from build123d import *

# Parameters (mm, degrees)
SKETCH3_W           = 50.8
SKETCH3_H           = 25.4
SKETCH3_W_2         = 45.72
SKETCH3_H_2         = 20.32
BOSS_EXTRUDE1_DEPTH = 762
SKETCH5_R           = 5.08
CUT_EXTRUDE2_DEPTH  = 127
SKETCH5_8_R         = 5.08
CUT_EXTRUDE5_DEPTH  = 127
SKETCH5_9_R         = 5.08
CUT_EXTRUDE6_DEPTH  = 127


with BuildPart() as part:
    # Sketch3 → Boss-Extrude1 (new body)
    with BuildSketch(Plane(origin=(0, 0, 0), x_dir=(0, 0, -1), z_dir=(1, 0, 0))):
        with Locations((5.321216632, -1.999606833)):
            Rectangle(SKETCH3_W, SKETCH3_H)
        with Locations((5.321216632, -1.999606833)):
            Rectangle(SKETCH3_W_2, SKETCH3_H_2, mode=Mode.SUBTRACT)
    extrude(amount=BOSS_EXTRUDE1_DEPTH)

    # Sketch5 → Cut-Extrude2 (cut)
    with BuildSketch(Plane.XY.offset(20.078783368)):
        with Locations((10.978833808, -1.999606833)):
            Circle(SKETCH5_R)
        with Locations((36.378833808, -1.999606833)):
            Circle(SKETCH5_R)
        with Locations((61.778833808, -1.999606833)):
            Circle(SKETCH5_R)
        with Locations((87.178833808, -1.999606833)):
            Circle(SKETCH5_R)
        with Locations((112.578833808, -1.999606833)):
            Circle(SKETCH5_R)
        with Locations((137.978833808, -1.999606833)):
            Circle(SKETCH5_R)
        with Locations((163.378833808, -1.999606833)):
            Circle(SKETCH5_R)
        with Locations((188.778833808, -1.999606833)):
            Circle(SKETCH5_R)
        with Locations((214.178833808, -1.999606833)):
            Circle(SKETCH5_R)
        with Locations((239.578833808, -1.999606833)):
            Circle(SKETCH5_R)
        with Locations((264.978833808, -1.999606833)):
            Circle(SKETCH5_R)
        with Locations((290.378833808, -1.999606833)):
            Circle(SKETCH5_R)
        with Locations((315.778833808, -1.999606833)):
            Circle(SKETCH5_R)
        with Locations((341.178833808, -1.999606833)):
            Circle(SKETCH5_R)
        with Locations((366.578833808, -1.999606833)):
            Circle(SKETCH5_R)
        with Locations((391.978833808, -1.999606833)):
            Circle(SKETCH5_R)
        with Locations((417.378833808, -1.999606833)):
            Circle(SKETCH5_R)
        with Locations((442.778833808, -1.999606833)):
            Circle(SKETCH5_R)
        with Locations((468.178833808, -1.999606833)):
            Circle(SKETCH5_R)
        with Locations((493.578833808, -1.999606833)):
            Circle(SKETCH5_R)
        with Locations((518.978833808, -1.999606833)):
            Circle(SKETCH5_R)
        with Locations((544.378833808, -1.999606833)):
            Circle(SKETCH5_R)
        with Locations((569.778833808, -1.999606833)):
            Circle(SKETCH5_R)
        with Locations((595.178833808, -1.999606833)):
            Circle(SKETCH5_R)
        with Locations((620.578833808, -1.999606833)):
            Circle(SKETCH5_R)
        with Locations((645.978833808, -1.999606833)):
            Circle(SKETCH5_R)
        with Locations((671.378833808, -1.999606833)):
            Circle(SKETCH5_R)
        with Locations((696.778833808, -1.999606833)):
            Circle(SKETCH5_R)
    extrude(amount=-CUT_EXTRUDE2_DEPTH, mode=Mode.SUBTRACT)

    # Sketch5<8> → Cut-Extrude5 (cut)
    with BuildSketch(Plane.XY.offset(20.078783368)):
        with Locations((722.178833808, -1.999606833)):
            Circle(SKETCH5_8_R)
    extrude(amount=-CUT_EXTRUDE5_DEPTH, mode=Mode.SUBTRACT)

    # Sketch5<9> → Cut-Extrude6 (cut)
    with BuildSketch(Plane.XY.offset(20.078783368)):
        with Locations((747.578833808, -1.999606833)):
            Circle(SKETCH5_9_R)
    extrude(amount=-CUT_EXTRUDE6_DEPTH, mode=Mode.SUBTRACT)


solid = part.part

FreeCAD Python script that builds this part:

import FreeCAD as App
import Part
import Sketcher
Q = App.Units.Quantity


def add_polygon(sketch, points):
    """Adds a closed chain of lines whose ends are joined by coincident constraints."""
    first, n = sketch.GeometryCount, len(points)
    for a, b in zip(points, points[1:] + points[:1]):
        sketch.addGeometry(Part.LineSegment(App.Vector(*a, 0), App.Vector(*b, 0)), False)
    for i in range(n):
        sketch.addConstraint(Sketcher.Constraint("Coincident", first + i, 2, first + (i + 1) % n, 1))

doc = App.newDocument("Part")
body = doc.addObject("PartDesign::Body", "Body")

sketch1 = body.newObject("Sketcher::SketchObject", "Sketch")
sketch1.AttachmentSupport = (doc.getObject("YZ_Plane"), [""])
sketch1.MapMode = "FlatFace"
add_polygon(sketch1, [(11, 20), (-15, 20), (-15, -31), (11, -31)])
add_polygon(sketch1, [(-12, -28), (-12, 18), (8, 18), (8, -28)])
sketch1.addConstraint([
    Sketcher.Constraint("Horizontal", 0),
    Sketcher.Constraint("Vertical", 1),
    Sketcher.Constraint("Horizontal", 2),
    Sketcher.Constraint("Vertical", 3),
    Sketcher.Constraint("Vertical", 4),
    Sketcher.Constraint("Horizontal", 5),
    Sketcher.Constraint("Vertical", 6),
    Sketcher.Constraint("Horizontal", 7),
    Sketcher.Constraint("DistanceX", 0, 2, 0, 1, Q("1 in")),
    Sketcher.Constraint("DistanceY", 1, 2, 1, 1, Q("2 in")),
    Sketcher.Constraint("DistanceX", 5, 1, 5, 2, Q("0.8 in")),
    Sketcher.Constraint("DistanceY", 4, 1, 4, 2, Q("1.8 in")),
    Sketcher.Constraint("DistanceX", 0, 2, 4, 2, Q("0.1 in")),
    Sketcher.Constraint("DistanceY", 4, 2, 0, 2, Q("0.1 in")),
    Sketcher.Constraint("DistanceX", 0, 2, -1, 1, Q("14.699607 mm")),
    Sketcher.Constraint("DistanceY", -1, 1, 0, 2, Q("20.078783 mm")),
])
pad1 = body.newObject("PartDesign::Pad", "Pad")
pad1.Profile = sketch1
pad1.Length = Q("30 in")

sketch2 = body.newObject("Sketcher::SketchObject", "Sketch001")
sketch2.AttachmentSupport = (doc.getObject("XY_Plane"), [""])
sketch2.MapMode = "FlatFace"
sketch2.AttachmentOffset = App.Placement(App.Vector(0, 0, 20.078783), App.Rotation())
sketch2.addGeometry([
    Part.Circle(App.Vector(11, -2, 0), App.Vector(0, 0, 1), 5),
    Part.Circle(App.Vector(36, -2, 0), App.Vector(0, 0, 1), 5),
    Part.Circle(App.Vector(62, -2, 0), App.Vector(0, 0, 1), 5),
    Part.Circle(App.Vector(87, -2, 0), App.Vector(0, 0, 1), 5),
    Part.Circle(App.Vector(113, -2, 0), App.Vector(0, 0, 1), 5),
    Part.Circle(App.Vector(138, -2, 0), App.Vector(0, 0, 1), 5),
    Part.Circle(App.Vector(163, -2, 0), App.Vector(0, 0, 1), 5),
    Part.Circle(App.Vector(189, -2, 0), App.Vector(0, 0, 1), 5),
    Part.Circle(App.Vector(214, -2, 0), App.Vector(0, 0, 1), 5),
    Part.Circle(App.Vector(240, -2, 0), App.Vector(0, 0, 1), 5),
    Part.Circle(App.Vector(265, -2, 0), App.Vector(0, 0, 1), 5),
    Part.Circle(App.Vector(290, -2, 0), App.Vector(0, 0, 1), 5),
    Part.Circle(App.Vector(316, -2, 0), App.Vector(0, 0, 1), 5),
    Part.Circle(App.Vector(341, -2, 0), App.Vector(0, 0, 1), 5),
    Part.Circle(App.Vector(367, -2, 0), App.Vector(0, 0, 1), 5),
    Part.Circle(App.Vector(392, -2, 0), App.Vector(0, 0, 1), 5),
    Part.Circle(App.Vector(417, -2, 0), App.Vector(0, 0, 1), 5),
    Part.Circle(App.Vector(443, -2, 0), App.Vector(0, 0, 1), 5),
    Part.Circle(App.Vector(468, -2, 0), App.Vector(0, 0, 1), 5),
    Part.Circle(App.Vector(494, -2, 0), App.Vector(0, 0, 1), 5),
    Part.Circle(App.Vector(519, -2, 0), App.Vector(0, 0, 1), 5),
    Part.Circle(App.Vector(544, -2, 0), App.Vector(0, 0, 1), 5),
    Part.Circle(App.Vector(570, -2, 0), App.Vector(0, 0, 1), 5),
    Part.Circle(App.Vector(595, -2, 0), App.Vector(0, 0, 1), 5),
    Part.Circle(App.Vector(621, -2, 0), App.Vector(0, 0, 1), 5),
    Part.Circle(App.Vector(646, -2, 0), App.Vector(0, 0, 1), 5),
    Part.Circle(App.Vector(671, -2, 0), App.Vector(0, 0, 1), 5),
    Part.Circle(App.Vector(697, -2, 0), App.Vector(0, 0, 1), 5),
], False)
sketch2.addConstraint([
    Sketcher.Constraint("Equal", 0, 1),
    Sketcher.Constraint("Equal", 1, 2),
    Sketcher.Constraint("Equal", 2, 3),
    Sketcher.Constraint("Equal", 3, 4),
    Sketcher.Constraint("Equal", 4, 5),
    Sketcher.Constraint("Equal", 5, 6),
    Sketcher.Constraint("Equal", 6, 7),
    Sketcher.Constraint("Equal", 7, 8),
    Sketcher.Constraint("Equal", 8, 9),
    Sketcher.Constraint("Equal", 9, 10),
    Sketcher.Constraint("Equal", 10, 11),
    Sketcher.Constraint("Equal", 11, 12),
    Sketcher.Constraint("Equal", 12, 13),
    Sketcher.Constraint("Equal", 13, 14),
    Sketcher.Constraint("Equal", 14, 15),
    Sketcher.Constraint("Equal", 15, 16),
    Sketcher.Constraint("Equal", 16, 17),
    Sketcher.Constraint("Equal", 17, 18),
    Sketcher.Constraint("Equal", 18, 19),
    Sketcher.Constraint("Equal", 19, 20),
    Sketcher.Constraint("Equal", 20, 21),
    Sketcher.Constraint("Equal", 21, 22),
    Sketcher.Constraint("Equal", 22, 23),
    Sketcher.Constraint("Equal", 23, 24),
    Sketcher.Constraint("Equal", 24, 25),
    Sketcher.Constraint("Equal", 25, 26),
    Sketcher.Constraint("Equal", 26, 27),
    Sketcher.Constraint("Horizontal", 0, 3, 1, 3),
    Sketcher.Constraint("Horizontal", 1, 3, 2, 3),
    Sketcher.Constraint("Horizontal", 2, 3, 3, 3),
    Sketcher.Constraint("Horizontal", 3, 3, 4, 3),
    Sketcher.Constraint("Horizontal", 4, 3, 5, 3),
    Sketcher.Constraint("Horizontal", 5, 3, 6, 3),
    Sketcher.Constraint("Horizontal", 6, 3, 7, 3),
    Sketcher.Constraint("Horizontal", 7, 3, 8, 3),
    Sketcher.Constraint("Horizontal", 8, 3, 9, 3),
    Sketcher.Constraint("Horizontal", 9, 3, 10, 3),
    Sketcher.Constraint("Horizontal", 10, 3, 11, 3),
    Sketcher.Constraint("Horizontal", 11, 3, 12, 3),
    Sketcher.Constraint("Horizontal", 12, 3, 13, 3),
    Sketcher.Constraint("Horizontal", 13, 3, 14, 3),
    Sketcher.Constraint("Horizontal", 14, 3, 15, 3),
    Sketcher.Constraint("Horizontal", 15, 3, 16, 3),
    Sketcher.Constraint("Horizontal", 16, 3, 17, 3),
    Sketcher.Constraint("Horizontal", 17, 3, 18, 3),
    Sketcher.Constraint("Horizontal", 18, 3, 19, 3),
    Sketcher.Constraint("Horizontal", 19, 3, 20, 3),
    Sketcher.Constraint("Horizontal", 20, 3, 21, 3),
    Sketcher.Constraint("Horizontal", 21, 3, 22, 3),
    Sketcher.Constraint("Horizontal", 22, 3, 23, 3),
    Sketcher.Constraint("Horizontal", 23, 3, 24, 3),
    Sketcher.Constraint("Horizontal", 24, 3, 25, 3),
    Sketcher.Constraint("Horizontal", 25, 3, 26, 3),
    Sketcher.Constraint("Horizontal", 26, 3, 27, 3),
    Sketcher.Constraint("Diameter", 0, Q("0.4 in")),
    Sketcher.Constraint("DistanceX", 0, 3, 1, 3, Q("1 in")),
    Sketcher.Constraint("DistanceX", 1, 3, 2, 3, Q("1 in")),
    Sketcher.Constraint("DistanceX", 2, 3, 3, 3, Q("1 in")),
    Sketcher.Constraint("DistanceX", 3, 3, 4, 3, Q("1 in")),
    Sketcher.Constraint("DistanceX", 4, 3, 5, 3, Q("1 in")),
    Sketcher.Constraint("DistanceX", 5, 3, 6, 3, Q("1 in")),
    Sketcher.Constraint("DistanceX", 6, 3, 7, 3, Q("1 in")),
    Sketcher.Constraint("DistanceX", 7, 3, 8, 3, Q("1 in")),
    Sketcher.Constraint("DistanceX", 8, 3, 9, 3, Q("1 in")),
    Sketcher.Constraint("DistanceX", 9, 3, 10, 3, Q("1 in")),
    Sketcher.Constraint("DistanceX", 10, 3, 11, 3, Q("1 in")),
    Sketcher.Constraint("DistanceX", 11, 3, 12, 3, Q("1 in")),
    Sketcher.Constraint("DistanceX", 12, 3, 13, 3, Q("1 in")),
    Sketcher.Constraint("DistanceX", 13, 3, 14, 3, Q("1 in")),
    Sketcher.Constraint("DistanceX", 14, 3, 15, 3, Q("1 in")),
    Sketcher.Constraint("DistanceX", 15, 3, 16, 3, Q("1 in")),
    Sketcher.Constraint("DistanceX", 16, 3, 17, 3, Q("1 in")),
    Sketcher.Constraint("DistanceX", 17, 3, 18, 3, Q("1 in")),
    Sketcher.Constraint("DistanceX", 18, 3, 19, 3, Q("1 in")),
    Sketcher.Constraint("DistanceX", 19, 3, 20, 3, Q("1 in")),
    Sketcher.Constraint("DistanceX", 20, 3, 21, 3, Q("1 in")),
    Sketcher.Constraint("DistanceX", 21, 3, 22, 3, Q("1 in")),
    Sketcher.Constraint("DistanceX", 22, 3, 23, 3, Q("1 in")),
    Sketcher.Constraint("DistanceX", 23, 3, 24, 3, Q("1 in")),
    Sketcher.Constraint("DistanceX", 24, 3, 25, 3, Q("1 in")),
    Sketcher.Constraint("DistanceX", 25, 3, 26, 3, Q("1 in")),
    Sketcher.Constraint("DistanceX", 26, 3, 27, 3, Q("1 in")),
    Sketcher.Constraint("DistanceX", -1, 1, 0, 3, Q("10.978834 mm")),
    Sketcher.Constraint("DistanceY", 0, 3, -1, 1, Q("1.999607 mm")),
])
pocket1 = body.newObject("PartDesign::Pocket", "Pocket")
pocket1.Profile = sketch2
pocket1.Length = Q("5 in")

sketch3 = body.newObject("Sketcher::SketchObject", "Sketch002")
sketch3.AttachmentSupport = (doc.getObject("XY_Plane"), [""])
sketch3.MapMode = "FlatFace"
sketch3.AttachmentOffset = App.Placement(App.Vector(0, 0, 20.078783), App.Rotation())
sketch3.addGeometry(Part.Circle(App.Vector(722, -2, 0), App.Vector(0, 0, 1), 5), False)
sketch3.addConstraint([
    Sketcher.Constraint("Diameter", 0, Q("0.4 in")),
    Sketcher.Constraint("DistanceX", -1, 1, 0, 3, Q("722.178834 mm")),
    Sketcher.Constraint("DistanceY", 0, 3, -1, 1, Q("1.999607 mm")),
])
pocket2 = body.newObject("PartDesign::Pocket", "Pocket001")
pocket2.Profile = sketch3
pocket2.Length = Q("5 in")

sketch4 = body.newObject("Sketcher::SketchObject", "Sketch003")
sketch4.AttachmentSupport = (doc.getObject("XY_Plane"), [""])
sketch4.MapMode = "FlatFace"
sketch4.AttachmentOffset = App.Placement(App.Vector(0, 0, 20.078783), App.Rotation())
sketch4.addGeometry(Part.Circle(App.Vector(748, -2, 0), App.Vector(0, 0, 1), 5), False)
sketch4.addConstraint([
    Sketcher.Constraint("Diameter", 0, Q("0.4 in")),
    Sketcher.Constraint("DistanceX", -1, 1, 0, 3, Q("747.578834 mm")),
    Sketcher.Constraint("DistanceY", 0, 3, -1, 1, Q("1.999607 mm")),
])
pocket3 = body.newObject("PartDesign::Pocket", "Pocket002")
pocket3.Profile = sketch4
pocket3.Length = Q("5 in")

doc.recompute()
